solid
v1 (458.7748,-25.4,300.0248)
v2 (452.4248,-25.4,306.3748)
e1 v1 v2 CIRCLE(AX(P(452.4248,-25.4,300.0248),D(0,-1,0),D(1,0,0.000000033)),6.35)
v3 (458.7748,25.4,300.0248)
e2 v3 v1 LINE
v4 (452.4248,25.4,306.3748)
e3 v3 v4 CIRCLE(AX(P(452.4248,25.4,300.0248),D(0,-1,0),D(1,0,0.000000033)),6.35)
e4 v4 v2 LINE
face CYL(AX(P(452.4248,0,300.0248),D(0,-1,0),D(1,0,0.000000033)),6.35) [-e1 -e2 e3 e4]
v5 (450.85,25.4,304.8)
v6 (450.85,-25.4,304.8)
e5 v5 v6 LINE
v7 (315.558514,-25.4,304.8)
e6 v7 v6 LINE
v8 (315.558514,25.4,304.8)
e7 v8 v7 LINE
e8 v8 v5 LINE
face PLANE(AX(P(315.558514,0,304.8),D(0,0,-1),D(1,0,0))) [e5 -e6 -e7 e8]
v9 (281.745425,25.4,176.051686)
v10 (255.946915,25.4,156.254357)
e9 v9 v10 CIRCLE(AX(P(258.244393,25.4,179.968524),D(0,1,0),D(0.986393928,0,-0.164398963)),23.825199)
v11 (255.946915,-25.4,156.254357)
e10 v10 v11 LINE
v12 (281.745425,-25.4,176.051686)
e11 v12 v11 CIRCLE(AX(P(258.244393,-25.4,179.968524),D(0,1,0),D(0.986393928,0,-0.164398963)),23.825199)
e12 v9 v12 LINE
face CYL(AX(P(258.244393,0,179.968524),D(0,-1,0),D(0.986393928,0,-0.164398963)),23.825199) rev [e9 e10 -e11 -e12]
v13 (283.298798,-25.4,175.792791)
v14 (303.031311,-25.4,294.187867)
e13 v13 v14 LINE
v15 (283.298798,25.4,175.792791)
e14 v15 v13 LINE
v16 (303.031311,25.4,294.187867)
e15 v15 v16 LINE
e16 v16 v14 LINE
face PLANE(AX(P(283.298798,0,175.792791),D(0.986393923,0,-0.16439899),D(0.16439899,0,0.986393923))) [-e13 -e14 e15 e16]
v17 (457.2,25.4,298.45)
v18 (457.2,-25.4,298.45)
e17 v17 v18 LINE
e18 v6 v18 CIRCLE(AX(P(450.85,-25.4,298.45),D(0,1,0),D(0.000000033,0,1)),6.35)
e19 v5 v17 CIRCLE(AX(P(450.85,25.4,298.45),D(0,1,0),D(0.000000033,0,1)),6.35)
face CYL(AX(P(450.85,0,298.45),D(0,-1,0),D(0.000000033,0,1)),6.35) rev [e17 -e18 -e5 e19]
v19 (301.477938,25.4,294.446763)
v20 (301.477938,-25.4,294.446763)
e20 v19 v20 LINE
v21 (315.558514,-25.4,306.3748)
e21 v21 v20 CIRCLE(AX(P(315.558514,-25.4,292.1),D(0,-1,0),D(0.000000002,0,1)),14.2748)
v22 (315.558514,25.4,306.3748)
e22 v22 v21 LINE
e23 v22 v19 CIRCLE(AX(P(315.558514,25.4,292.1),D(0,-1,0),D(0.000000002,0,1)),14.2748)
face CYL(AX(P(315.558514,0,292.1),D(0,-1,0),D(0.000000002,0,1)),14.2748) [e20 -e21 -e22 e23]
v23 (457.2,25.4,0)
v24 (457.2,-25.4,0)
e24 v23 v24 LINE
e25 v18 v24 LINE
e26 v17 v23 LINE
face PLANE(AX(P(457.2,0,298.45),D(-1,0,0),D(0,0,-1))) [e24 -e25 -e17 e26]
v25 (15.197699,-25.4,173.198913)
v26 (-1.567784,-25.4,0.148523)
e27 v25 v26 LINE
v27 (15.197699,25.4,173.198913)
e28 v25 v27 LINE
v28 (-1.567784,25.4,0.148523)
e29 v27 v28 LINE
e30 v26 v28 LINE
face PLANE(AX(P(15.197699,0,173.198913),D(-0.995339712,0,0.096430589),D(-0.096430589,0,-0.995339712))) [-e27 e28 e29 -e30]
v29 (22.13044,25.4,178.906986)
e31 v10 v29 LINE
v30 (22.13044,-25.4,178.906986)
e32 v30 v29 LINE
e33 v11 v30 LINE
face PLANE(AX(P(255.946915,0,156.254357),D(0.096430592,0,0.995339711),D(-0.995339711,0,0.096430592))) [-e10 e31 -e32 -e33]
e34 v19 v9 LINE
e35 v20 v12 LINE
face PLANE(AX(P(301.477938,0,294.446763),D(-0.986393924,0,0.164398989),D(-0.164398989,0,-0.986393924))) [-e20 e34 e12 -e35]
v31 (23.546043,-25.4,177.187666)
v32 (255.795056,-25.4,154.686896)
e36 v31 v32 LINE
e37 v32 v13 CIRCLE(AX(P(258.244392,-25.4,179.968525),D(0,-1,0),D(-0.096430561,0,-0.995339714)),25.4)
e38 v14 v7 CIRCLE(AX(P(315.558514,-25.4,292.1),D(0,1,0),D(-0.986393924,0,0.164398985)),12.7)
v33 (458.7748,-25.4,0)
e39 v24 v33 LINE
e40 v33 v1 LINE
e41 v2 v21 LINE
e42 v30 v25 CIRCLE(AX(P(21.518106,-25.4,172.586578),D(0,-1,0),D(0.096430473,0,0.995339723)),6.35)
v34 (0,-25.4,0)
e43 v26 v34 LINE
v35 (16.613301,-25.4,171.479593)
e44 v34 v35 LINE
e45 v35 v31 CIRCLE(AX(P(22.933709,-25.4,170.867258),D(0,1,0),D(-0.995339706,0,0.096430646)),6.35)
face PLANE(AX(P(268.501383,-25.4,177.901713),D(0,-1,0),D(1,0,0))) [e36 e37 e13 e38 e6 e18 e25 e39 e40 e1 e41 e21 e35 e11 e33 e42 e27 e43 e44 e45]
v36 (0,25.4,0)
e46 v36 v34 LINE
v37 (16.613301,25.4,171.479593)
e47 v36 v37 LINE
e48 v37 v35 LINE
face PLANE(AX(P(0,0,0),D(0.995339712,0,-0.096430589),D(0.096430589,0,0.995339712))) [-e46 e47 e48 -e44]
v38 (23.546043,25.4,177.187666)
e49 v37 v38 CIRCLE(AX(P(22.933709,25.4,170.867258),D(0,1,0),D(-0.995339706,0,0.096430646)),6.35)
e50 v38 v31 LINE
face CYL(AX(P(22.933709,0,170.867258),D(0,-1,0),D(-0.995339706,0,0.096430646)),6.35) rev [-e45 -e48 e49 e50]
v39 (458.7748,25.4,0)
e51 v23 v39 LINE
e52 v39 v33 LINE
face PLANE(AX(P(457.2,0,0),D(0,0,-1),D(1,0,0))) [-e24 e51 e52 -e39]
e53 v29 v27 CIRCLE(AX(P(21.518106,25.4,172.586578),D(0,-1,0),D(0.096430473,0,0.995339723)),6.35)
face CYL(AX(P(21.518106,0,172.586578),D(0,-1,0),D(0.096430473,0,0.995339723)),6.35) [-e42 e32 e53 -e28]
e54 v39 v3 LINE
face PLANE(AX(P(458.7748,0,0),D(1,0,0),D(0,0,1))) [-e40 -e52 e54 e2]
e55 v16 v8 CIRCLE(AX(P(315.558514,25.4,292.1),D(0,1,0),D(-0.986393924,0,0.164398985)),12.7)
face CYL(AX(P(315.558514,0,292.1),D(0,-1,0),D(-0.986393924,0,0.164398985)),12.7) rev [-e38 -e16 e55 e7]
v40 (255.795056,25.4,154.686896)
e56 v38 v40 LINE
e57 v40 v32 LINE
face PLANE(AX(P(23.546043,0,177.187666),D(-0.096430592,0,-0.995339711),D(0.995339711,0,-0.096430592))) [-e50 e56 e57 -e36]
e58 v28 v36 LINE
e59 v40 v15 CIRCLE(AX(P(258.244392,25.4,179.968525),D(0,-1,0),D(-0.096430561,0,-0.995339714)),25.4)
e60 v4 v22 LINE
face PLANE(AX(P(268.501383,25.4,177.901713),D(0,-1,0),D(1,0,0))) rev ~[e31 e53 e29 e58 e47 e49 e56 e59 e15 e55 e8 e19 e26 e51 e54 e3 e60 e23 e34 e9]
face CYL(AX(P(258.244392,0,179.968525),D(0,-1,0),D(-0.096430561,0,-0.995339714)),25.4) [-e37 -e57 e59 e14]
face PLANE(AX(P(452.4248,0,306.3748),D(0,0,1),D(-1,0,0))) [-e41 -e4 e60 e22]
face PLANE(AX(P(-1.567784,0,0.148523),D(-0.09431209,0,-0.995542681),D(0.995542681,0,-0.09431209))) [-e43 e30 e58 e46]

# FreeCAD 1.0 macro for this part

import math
import FreeCAD as App
import Part
import Sketcher
Q = App.Units.Quantity

doc = App.newDocument("Part")
params = doc.addObject("Spreadsheet::Sheet", "Params")
for row, (alias, value) in enumerate([
    ("sketch1_radius", "1 in"),
    ("sketch1_radius2", "0.5 in"),
    ("sketch1_radius3", "0.25 in"),
    ("sketch1_radius4", "0.562 in"),
    ("sketch1_width", "0.062 in"),
    ("pad1_length", "1 in"),
    ("pad1_length2", "1 in"),
], start=1):
    params.set(f"A{row}", alias)
    params.set(f"B{row}", "=" + value)
    params.setAlias(f"B{row}", alias)

body = doc.addObject("PartDesign::Body", "Body")

sketch1 = doc.addObject("Sketcher::SketchObject", "Sketch")
body.addObject(sketch1)
sketch1.AttachmentSupport = (doc.XZ_Plane, [""])
sketch1.MapMode = "FlatFace"
sketch1.addGeometry(Part.LineSegment(App.Vector(-1.567784, 0.148523, 0), App.Vector(0, 0, 0)), False)
sketch1.addGeometry(Part.LineSegment(App.Vector(0, 0, 0), App.Vector(16.613301, 171.479593, 0)), False)
sketch1.addGeometry(Part.ArcOfCircle(Part.Circle(App.Vector(22.933709, 170.867258, 0), App.Vector(0, 0, 1), 6.35), math.radians(84.466335), math.radians(174.466332)), False)
sketch1.addGeometry(Part.LineSegment(App.Vector(23.546043, 177.187666, 0), App.Vector(255.795056, 154.686896, 0)), False)
sketch1.addGeometry(Part.ArcOfCircle(Part.Circle(App.Vector(258.244392, 179.968525, 0), App.Vector(0, 0, 1), 25.4), math.radians(-95.533663), math.radians(-9.462321)), False)
sketch1.addGeometry(Part.LineSegment(App.Vector(283.298798, 175.792791, 0), App.Vector(303.031311, 294.187867, 0)), False)
sketch1.addGeometry(Part.ArcOfCircle(Part.Circle(App.Vector(315.558514, 292.1, 0), App.Vector(0, 0, 1), 12.7), math.radians(90), math.radians(170.537678)), False)
sketch1.addGeometry(Part.LineSegment(App.Vector(315.558514, 304.8, 0), App.Vector(450.85, 304.8, 0)), False)
sketch1.addGeometry(Part.ArcOfCircle(Part.Circle(App.Vector(450.85, 298.45, 0), App.Vector(0, 0, 1), 6.35), math.radians(0.000002), math.radians(89.999998)), False)
sketch1.addGeometry(Part.LineSegment(App.Vector(457.2, 298.45, 0), App.Vector(457.2, 0, 0)), False)
sketch1.addGeometry(Part.LineSegment(App.Vector(457.2, 0, 0), App.Vector(458.7748, 0, 0)), False)
sketch1.addGeometry(Part.LineSegment(App.Vector(458.7748, 0, 0), App.Vector(458.7748, 300.0248, 0)), False)
sketch1.addGeometry(Part.ArcOfCircle(Part.Circle(App.Vector(452.4248, 300.0248, 0), App.Vector(0, 0, 1), 6.35), math.radians(0.000002), math.radians(89.999998)), False)
sketch1.addGeometry(Part.LineSegment(App.Vector(452.4248, 306.3748, 0), App.Vector(315.558514, 306.3748, 0)), False)
sketch1.addGeometry(Part.ArcOfCircle(Part.Circle(App.Vector(315.558514, 292.1, 0), App.Vector(0, 0, 1), 14.2748), math.radians(90), math.radians(170.537676)), False)
sketch1.addGeometry(Part.LineSegment(App.Vector(301.477938, 294.446763, 0), App.Vector(281.745425, 176.051686, 0)), False)
sketch1.addGeometry(Part.ArcOfCircle(Part.Circle(App.Vector(258.244393, 179.968524, 0), App.Vector(0, 0, 1), 23.825199), math.radians(-95.533665), math.radians(-9.462321)), False)
sketch1.addGeometry(Part.LineSegment(App.Vector(255.946915, 156.254357, 0), App.Vector(22.13044, 178.906986, 0)), False)
sketch1.addGeometry(Part.ArcOfCircle(Part.Circle(App.Vector(21.518106, 172.586578, 0), App.Vector(0, 0, 1), 6.35), math.radians(84.466342), math.radians(174.466333)), False)
sketch1.addGeometry(Part.LineSegment(App.Vector(15.197699, 173.198913, 0), App.Vector(-1.567784, 0.148523, 0)), False)
sketch1.addConstraint(Sketcher.Constraint("Coincident", 0, 2, 1, 1))
sketch1.addConstraint(Sketcher.Constraint("Tangent", 1, 2, 2, 2))
sketch1.addConstraint(Sketcher.Constraint("Tangent", 2, 1, 3, 1))
sketch1.addConstraint(Sketcher.Constraint("Tangent", 3, 2, 4, 1))
sketch1.addConstraint(Sketcher.Constraint("Tangent", 4, 2, 5, 1))
sketch1.addConstraint(Sketcher.Constraint("Tangent", 5, 2, 6, 2))
sketch1.addConstraint(Sketcher.Constraint("Tangent", 6, 1, 7, 1))
sketch1.addConstraint(Sketcher.Constraint("Tangent", 7, 2, 8, 2))
sketch1.addConstraint(Sketcher.Constraint("Tangent", 8, 1, 9, 1))
sketch1.addConstraint(Sketcher.Constraint("Coincident", 9, 2, 10, 1))
sketch1.addConstraint(Sketcher.Constraint("Coincident", 10, 2, 11, 1))
sketch1.addConstraint(Sketcher.Constraint("Tangent", 11, 2, 12, 1))
sketch1.addConstraint(Sketcher.Constraint("Tangent", 12, 2, 13, 1))
sketch1.addConstraint(Sketcher.Constraint("Tangent", 13, 2, 14, 1))
sketch1.addConstraint(Sketcher.Constraint("Tangent", 14, 2, 15, 1))
sketch1.addConstraint(Sketcher.Constraint("Tangent", 15, 2, 16, 2))
sketch1.addConstraint(Sketcher.Constraint("Tangent", 16, 1, 17, 1))
sketch1.addConstraint(Sketcher.Constraint("Tangent", 17, 2, 18, 1))
sketch1.addConstraint(Sketcher.Constraint("Tangent", 18, 2, 19, 1))
sketch1.addConstraint(Sketcher.Constraint("Coincident", 19, 2, 0, 1))
sketch1.addConstraint(Sketcher.Constraint("Horizontal", 7))
sketch1.addConstraint(Sketcher.Constraint("Vertical", 9))
sketch1.addConstraint(Sketcher.Constraint("Horizontal", 10))
sketch1.addConstraint(Sketcher.Constraint("Vertical", 11))
sketch1.addConstraint(Sketcher.Constraint("Horizontal", 13))
sketch1.addConstraint(Sketcher.Constraint("Coincident", 0, 2, -1, 1))
sketch1.addConstraint(Sketcher.Constraint("Coincident", 14, 3, 6, 3))
sketch1.addConstraint(Sketcher.Constraint("Coincident", 16, 3, 4, 3))
sketch1.addConstraint(Sketcher.Constraint("Equal", 2, 8))
sketch1.addConstraint(Sketcher.Constraint("Equal", 8, 12))
sketch1.addConstraint(Sketcher.Constraint("Equal", 12, 18))
sketch1.addConstraint(Sketcher.Constraint("PointOnObject", 9, 2, -1))
sketch1.addConstraint(Sketcher.Constraint("Perpendicular", 1, 3))
sketch1.addConstraint(Sketcher.Constraint("Parallel", 5, 15))
sketch1.addConstraint(Sketcher.Constraint("Parallel", 3, 17))
sketch1.addConstraint(Sketcher.Constraint("Perpendicular", 17, 19))
sketch1.addConstraint(Sketcher.Constraint("Radius", 4, Q("1 in")))
sketch1.addConstraint(Sketcher.Constraint("Radius", 6, Q("0.5 in")))
sketch1.addConstraint(Sketcher.Constraint("Radius", 2, Q("0.25 in")))
sketch1.addConstraint(Sketcher.Constraint("DistanceY", -1, 1, 6, 1, Q("12 in")))
sketch1.addConstraint(Sketcher.Constraint("DistanceX", -1, 1, 8, 1, Q("18 in")))
sketch1.addConstraint(Sketcher.Constraint("Radius", 14, Q("0.562 in")))
sketch1.addConstraint(Sketcher.Constraint("DistanceX", 10, 1, 10, 2, Q("0.062 in")))
sketch1.addConstraint(Sketcher.Constraint("Distance", 0, Q("0.0620001 in")))
sketch1.addConstraint(Sketcher.Constraint("DistanceX", 2, 3, 4, 3, Q("9.2642001 in")))
sketch1.addConstraint(Sketcher.Constraint("DistanceY", 19, 2, 18, 3, Q("6.7888998 in")))
sketch1.addConstraint(Sketcher.Constraint("DistanceX", -1, 1, 1, 2, Q("16.613301 mm")))
sketch1.addConstraint(Sketcher.Constraint("Distance", 1, Q("172.282479 mm")))
sketch1.addConstraint(Sketcher.Constraint("Distance", 5, Q("120.028189 mm")))
sketch1.setExpression("Constraints[36]", "Params.sketch1_radius")
sketch1.setExpression("Constraints[37]", "Params.sketch1_radius2")
sketch1.setExpression("Constraints[38]", "Params.sketch1_radius3")
sketch1.setExpression("Constraints[41]", "Params.sketch1_radius4")
sketch1.setExpression("Constraints[42]", "Params.sketch1_width")
pad1 = doc.addObject("PartDesign::Pad", "Pad")
body.addObject(pad1)
pad1.Profile = sketch1
pad1.Type = "TwoLengths"
pad1.setExpression("Length", "Params.pad1_length")
pad1.setExpression("Length2", "Params.pad1_length2")

doc.recompute()
